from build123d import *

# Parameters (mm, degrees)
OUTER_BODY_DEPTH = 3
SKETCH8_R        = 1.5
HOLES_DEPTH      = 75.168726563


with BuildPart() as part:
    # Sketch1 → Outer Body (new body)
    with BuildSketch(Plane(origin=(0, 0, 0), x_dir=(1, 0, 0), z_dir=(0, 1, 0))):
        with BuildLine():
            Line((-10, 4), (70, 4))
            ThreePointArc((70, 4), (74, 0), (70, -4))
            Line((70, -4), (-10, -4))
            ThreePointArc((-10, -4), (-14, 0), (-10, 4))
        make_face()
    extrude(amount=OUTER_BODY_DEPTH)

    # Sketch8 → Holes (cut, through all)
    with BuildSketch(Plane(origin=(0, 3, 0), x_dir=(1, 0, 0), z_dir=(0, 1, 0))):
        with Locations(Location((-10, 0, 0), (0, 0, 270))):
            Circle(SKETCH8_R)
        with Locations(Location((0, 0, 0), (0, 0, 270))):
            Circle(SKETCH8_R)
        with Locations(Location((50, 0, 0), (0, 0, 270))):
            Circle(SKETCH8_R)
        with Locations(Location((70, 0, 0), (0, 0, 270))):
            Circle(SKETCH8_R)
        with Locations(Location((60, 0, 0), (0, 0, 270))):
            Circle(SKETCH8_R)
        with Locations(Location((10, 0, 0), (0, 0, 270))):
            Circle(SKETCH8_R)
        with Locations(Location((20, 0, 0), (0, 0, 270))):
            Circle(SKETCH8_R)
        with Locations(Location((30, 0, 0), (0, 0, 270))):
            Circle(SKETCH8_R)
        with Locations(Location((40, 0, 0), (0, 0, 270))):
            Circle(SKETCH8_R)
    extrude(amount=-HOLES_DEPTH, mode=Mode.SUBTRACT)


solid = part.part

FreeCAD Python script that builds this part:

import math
import FreeCAD as App
import Part
import Sketcher

V = App.Vector
Q = App.Units.Quantity

doc = App.newDocument("Part")
body = doc.addObject("PartDesign::Body", "Body")

# Sketch on XZ plane
sketch1 = body.newObject("Sketcher::SketchObject", "Sketch")
sketch1.AttachmentSupport = (doc.getObject("XZ_Plane"), [""])
sketch1.MapMode = "FlatFace"
sketch1.addGeometry([
    Part.LineSegment(V(70, -4, 0), V(-10, -4, 0)),
    Part.ArcOfCircle(Part.Circle(V(-10, 0, 0), V(0, 0, 1), 4), math.radians(90), math.radians(270)),
    Part.LineSegment(V(-10, 4, 0), V(70, 4, 0)),
    Part.ArcOfCircle(Part.Circle(V(70, 0, 0), V(0, 0, 1), 4), math.radians(-90), math.radians(90)),
], False)
sketch1.addConstraint([
    Sketcher.Constraint("Tangent", 0, 2, 1, 2),
    Sketcher.Constraint("Tangent", 1, 1, 2, 1),
    Sketcher.Constraint("Tangent", 2, 2, 3, 2),
    Sketcher.Constraint("Tangent", 3, 1, 0, 1),
    Sketcher.Constraint("Horizontal", 0),
    Sketcher.Constraint("Horizontal", 2),
    Sketcher.Constraint("PointOnObject", 1, 3, -1),
    Sketcher.Constraint("Radius", 1, Q("4 mm")),
    Sketcher.Constraint("DistanceX", 0, 2, 0, 1, Q("80 mm")),
    Sketcher.Constraint("DistanceX", 1, 3, -1, 1, Q("10 mm")),
])
pad1 = body.newObject("PartDesign::Pad", "Pad")
pad1.Profile = sketch1
pad1.Length = 3
pad1.Reversed = True

# Sketch on XZ plane
sketch2 = body.newObject("Sketcher::SketchObject", "Sketch001")
sketch2.AttachmentSupport = (doc.getObject("XZ_Plane"), [""])
sketch2.MapMode = "FlatFace"
sketch2.AttachmentOffset = App.Placement(V(0, 0, -3), App.Rotation())
sketch2.addGeometry([
    Part.Circle(V(-10, 0, 0), V(0, 0, 1), 1.5),  # 0
    Part.Circle(V(0, 0, 0), V(0, 0, 1), 1.5),  # 1
    Part.Circle(V(50, 0, 0), V(0, 0, 1), 1.5),  # 2
    Part.Circle(V(70, 0, 0), V(0, 0, 1), 1.5),  # 3
    Part.Circle(V(60, 0, 0), V(0, 0, 1), 1.5),  # 4
    Part.Circle(V(10, 0, 0), V(0, 0, 1), 1.5),  # 5
    Part.Circle(V(20, 0, 0), V(0, 0, 1), 1.5),  # 6
    Part.Circle(V(30, 0, 0), V(0, 0, 1), 1.5),  # 7
    Part.Circle(V(40, 0, 0), V(0, 0, 1), 1.5),  # 8
], False)
sketch2.addConstraint([
    Sketcher.Constraint("Coincident", 1, 3, -1, 1),
    Sketcher.Constraint("Equal", 0, 1),
    Sketcher.Constraint("Equal", 1, 2),
    Sketcher.Constraint("Equal", 2, 3),
    Sketcher.Constraint("Equal", 3, 4),
    Sketcher.Constraint("Equal", 4, 5),
    Sketcher.Constraint("Equal", 5, 6),
    Sketcher.Constraint("Equal", 6, 7),
    Sketcher.Constraint("Equal", 7, 8),
    Sketcher.Constraint("Symmetric", 0, 3, 5, 3, -1, 1),
    Sketcher.Constraint("PointOnObject", 0, 3, -1),
    Sketcher.Constraint("PointOnObject", 2, 3, -1),
    Sketcher.Constraint("PointOnObject", 3, 3, -1),
    Sketcher.Constraint("PointOnObject", 4, 3, -1),
    Sketcher.Constraint("PointOnObject", 6, 3, -1),
    Sketcher.Constraint("PointOnObject", 7, 3, -1),
    Sketcher.Constraint("PointOnObject", 8, 3, -1),
    Sketcher.Constraint("Diameter", 0, Q("3 mm")),
    Sketcher.Constraint("DistanceX", 0, 3, -1, 1, Q("10 mm")),
    Sketcher.Constraint("DistanceX", -1, 1, 2, 3, Q("50 mm")),
    Sketcher.Constraint("DistanceX", -1, 1, 3, 3, Q("70 mm")),
    Sketcher.Constraint("DistanceX", -1, 1, 4, 3, Q("60 mm")),
    Sketcher.Constraint("DistanceX", -1, 1, 6, 3, Q("20 mm")),
    Sketcher.Constraint("DistanceX", -1, 1, 7, 3, Q("30 mm")),
    Sketcher.Constraint("DistanceX", -1, 1, 8, 3, Q("40 mm")),
])
pocket1 = body.newObject("PartDesign::Pocket", "Pocket")
pocket1.Profile = sketch2
pocket1.Type = "ThroughAll"
pocket1.Reversed = True

doc.recompute()
